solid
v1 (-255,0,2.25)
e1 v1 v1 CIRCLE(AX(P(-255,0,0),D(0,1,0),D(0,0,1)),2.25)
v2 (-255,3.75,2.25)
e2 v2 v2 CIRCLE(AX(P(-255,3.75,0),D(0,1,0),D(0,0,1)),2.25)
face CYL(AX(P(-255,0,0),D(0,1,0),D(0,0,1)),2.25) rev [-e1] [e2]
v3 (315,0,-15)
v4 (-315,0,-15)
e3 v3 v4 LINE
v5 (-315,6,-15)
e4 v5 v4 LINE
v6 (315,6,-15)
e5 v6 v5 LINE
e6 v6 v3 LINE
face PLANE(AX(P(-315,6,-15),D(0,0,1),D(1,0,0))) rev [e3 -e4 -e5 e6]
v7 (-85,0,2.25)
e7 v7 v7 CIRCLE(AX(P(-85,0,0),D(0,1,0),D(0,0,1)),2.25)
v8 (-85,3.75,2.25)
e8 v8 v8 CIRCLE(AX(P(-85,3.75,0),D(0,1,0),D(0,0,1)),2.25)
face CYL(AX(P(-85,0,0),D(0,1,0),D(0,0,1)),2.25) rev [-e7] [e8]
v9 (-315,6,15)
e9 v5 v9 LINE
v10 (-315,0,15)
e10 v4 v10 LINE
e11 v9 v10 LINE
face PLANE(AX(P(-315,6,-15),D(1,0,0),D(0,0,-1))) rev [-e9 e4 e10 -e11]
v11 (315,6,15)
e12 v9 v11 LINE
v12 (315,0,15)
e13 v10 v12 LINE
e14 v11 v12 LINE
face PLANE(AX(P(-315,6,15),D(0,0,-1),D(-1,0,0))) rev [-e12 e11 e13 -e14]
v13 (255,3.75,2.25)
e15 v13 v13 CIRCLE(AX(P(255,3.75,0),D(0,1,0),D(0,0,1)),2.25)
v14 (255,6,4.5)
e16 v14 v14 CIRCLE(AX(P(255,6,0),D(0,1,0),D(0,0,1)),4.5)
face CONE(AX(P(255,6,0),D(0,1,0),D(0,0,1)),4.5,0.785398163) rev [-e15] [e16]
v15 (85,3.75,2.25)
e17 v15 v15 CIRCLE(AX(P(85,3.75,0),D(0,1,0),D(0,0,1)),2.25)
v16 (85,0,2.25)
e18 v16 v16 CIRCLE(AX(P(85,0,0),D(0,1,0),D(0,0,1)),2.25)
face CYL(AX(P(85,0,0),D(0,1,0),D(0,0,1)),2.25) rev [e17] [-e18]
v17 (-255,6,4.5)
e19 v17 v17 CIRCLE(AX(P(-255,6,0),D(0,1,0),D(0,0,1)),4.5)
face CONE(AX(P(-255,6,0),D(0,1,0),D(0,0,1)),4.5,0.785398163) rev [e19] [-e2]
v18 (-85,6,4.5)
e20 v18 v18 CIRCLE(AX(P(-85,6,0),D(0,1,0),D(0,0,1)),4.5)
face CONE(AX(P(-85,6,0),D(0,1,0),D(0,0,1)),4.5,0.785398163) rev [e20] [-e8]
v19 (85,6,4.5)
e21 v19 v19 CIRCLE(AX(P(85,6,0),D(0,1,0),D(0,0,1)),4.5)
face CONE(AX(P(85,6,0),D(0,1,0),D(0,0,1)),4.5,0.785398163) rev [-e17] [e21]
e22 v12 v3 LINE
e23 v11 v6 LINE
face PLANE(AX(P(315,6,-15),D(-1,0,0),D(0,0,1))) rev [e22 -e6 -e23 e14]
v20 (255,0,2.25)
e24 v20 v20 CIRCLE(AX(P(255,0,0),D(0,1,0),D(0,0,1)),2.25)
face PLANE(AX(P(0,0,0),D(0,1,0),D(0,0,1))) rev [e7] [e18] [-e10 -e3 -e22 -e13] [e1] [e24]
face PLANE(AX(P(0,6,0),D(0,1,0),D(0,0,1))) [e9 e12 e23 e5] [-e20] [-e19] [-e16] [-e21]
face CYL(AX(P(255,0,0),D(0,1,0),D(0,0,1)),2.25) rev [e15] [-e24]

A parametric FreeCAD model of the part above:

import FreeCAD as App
import Part
import Sketcher
from FreeCAD import Vector


def add_polygon(sketch, points):
    """Adds a closed chain of lines whose ends are joined by coincident constraints."""
    first, n = sketch.GeometryCount, len(points)
    for a, b in zip(points, points[1:] + points[:1]):
        sketch.addGeometry(Part.LineSegment(App.Vector(*a, 0), App.Vector(*b, 0)), False)
    for i in range(n):
        sketch.addConstraint(Sketcher.Constraint("Coincident", first + i, 2, first + (i + 1) % n, 1))

doc = App.newDocument("Part")
body = doc.addObject("PartDesign::Body", "Body")

sketch1 = body.newObject("Sketcher::SketchObject", "Sketch")
sketch1.AttachmentSupport = (doc.getObject("XZ_Plane"), [""])
sketch1.MapMode = "FlatFace"
add_polygon(sketch1, [(-315, -15), (-315, 15), (315, 15), (315, -15)])
sketch1.addConstraint([
    Sketcher.Constraint("Vertical", 0),
    Sketcher.Constraint("Horizontal", 1),
    Sketcher.Constraint("Vertical", 2),
    Sketcher.Constraint("Horizontal", 3),
    Sketcher.Constraint("Symmetric", 0, 2, 2, 2, -1, 1),
    Sketcher.Constraint("DistanceX", 1, 1, 1, 2, 630.0),
    Sketcher.Constraint("DistanceY", 0, 1, 0, 2, 30.0),
])
pad1 = body.newObject("PartDesign::Pad", "Pad")
pad1.Profile = sketch1
pad1.Length = 6
pad1.Reversed = True

sketch2 = body.newObject("Sketcher::SketchObject", "Sketch001")
sketch2.AttachmentSupport = (doc.getObject("XZ_Plane"), [""])
sketch2.MapMode = "FlatFace"
sketch2.AttachmentOffset = App.Placement(Vector(0, 0, -6), App.Rotation())
sketch2.addGeometry(Part.Circle(Vector(-255, 0, 0), Vector(0, 0, 1), 2.2), False)
sketch2.addConstraint([
    Sketcher.Constraint("PointOnObject", 0, 3, -1),
    Sketcher.Constraint("Diameter", 0, 4.5),
    Sketcher.Constraint("DistanceX", 0, 3, -1, 1, 255.0),
])
pocket1 = body.newObject("PartDesign::Pocket", "Pocket")
pocket1.Profile = sketch2
pocket1.Type = "ThroughAll"
pocket1.Reversed = True

sketch3 = body.newObject("Sketcher::SketchObject", "Sketch002")
sketch3.AttachmentSupport = (doc.getObject("YZ_Plane"), [""])
sketch3.MapMode = "FlatFace"
sketch3.AttachmentOffset = App.Placement(Vector(0, 0, -255), App.Rotation())
add_polygon(sketch3, [(6, 0), (6, 4.5), (1.5, 0)])
sketch3.addConstraint([
    Sketcher.Constraint("Vertical", 0),
    Sketcher.Constraint("Horizontal", 2),
    Sketcher.Constraint("PointOnObject", 1, 2, -1),
    Sketcher.Constraint("Equal", 2, 0),
    Sketcher.Constraint("DistanceX", 2, 1, 2, 2, 4.5),
    Sketcher.Constraint("DistanceX", -1, 1, 0, 2, 6.0),
])
groove = body.newObject("PartDesign::Groove", "Groove")
groove.Profile = sketch3
groove.ReferenceAxis = (sketch3, ["H_Axis"])
groove.Angle = 360
doc.recompute()

linearpattern = body.newObject("PartDesign::LinearPattern", "LinearPattern")
linearpattern.Originals = [pocket1, groove]
linearpattern.Direction = (doc.getObject("X_Axis"), [""])
linearpattern.Mode = "offset"
linearpattern.Offset = 170
linearpattern.Occurrences = 4
body.Tip = linearpattern

doc.recompute()
